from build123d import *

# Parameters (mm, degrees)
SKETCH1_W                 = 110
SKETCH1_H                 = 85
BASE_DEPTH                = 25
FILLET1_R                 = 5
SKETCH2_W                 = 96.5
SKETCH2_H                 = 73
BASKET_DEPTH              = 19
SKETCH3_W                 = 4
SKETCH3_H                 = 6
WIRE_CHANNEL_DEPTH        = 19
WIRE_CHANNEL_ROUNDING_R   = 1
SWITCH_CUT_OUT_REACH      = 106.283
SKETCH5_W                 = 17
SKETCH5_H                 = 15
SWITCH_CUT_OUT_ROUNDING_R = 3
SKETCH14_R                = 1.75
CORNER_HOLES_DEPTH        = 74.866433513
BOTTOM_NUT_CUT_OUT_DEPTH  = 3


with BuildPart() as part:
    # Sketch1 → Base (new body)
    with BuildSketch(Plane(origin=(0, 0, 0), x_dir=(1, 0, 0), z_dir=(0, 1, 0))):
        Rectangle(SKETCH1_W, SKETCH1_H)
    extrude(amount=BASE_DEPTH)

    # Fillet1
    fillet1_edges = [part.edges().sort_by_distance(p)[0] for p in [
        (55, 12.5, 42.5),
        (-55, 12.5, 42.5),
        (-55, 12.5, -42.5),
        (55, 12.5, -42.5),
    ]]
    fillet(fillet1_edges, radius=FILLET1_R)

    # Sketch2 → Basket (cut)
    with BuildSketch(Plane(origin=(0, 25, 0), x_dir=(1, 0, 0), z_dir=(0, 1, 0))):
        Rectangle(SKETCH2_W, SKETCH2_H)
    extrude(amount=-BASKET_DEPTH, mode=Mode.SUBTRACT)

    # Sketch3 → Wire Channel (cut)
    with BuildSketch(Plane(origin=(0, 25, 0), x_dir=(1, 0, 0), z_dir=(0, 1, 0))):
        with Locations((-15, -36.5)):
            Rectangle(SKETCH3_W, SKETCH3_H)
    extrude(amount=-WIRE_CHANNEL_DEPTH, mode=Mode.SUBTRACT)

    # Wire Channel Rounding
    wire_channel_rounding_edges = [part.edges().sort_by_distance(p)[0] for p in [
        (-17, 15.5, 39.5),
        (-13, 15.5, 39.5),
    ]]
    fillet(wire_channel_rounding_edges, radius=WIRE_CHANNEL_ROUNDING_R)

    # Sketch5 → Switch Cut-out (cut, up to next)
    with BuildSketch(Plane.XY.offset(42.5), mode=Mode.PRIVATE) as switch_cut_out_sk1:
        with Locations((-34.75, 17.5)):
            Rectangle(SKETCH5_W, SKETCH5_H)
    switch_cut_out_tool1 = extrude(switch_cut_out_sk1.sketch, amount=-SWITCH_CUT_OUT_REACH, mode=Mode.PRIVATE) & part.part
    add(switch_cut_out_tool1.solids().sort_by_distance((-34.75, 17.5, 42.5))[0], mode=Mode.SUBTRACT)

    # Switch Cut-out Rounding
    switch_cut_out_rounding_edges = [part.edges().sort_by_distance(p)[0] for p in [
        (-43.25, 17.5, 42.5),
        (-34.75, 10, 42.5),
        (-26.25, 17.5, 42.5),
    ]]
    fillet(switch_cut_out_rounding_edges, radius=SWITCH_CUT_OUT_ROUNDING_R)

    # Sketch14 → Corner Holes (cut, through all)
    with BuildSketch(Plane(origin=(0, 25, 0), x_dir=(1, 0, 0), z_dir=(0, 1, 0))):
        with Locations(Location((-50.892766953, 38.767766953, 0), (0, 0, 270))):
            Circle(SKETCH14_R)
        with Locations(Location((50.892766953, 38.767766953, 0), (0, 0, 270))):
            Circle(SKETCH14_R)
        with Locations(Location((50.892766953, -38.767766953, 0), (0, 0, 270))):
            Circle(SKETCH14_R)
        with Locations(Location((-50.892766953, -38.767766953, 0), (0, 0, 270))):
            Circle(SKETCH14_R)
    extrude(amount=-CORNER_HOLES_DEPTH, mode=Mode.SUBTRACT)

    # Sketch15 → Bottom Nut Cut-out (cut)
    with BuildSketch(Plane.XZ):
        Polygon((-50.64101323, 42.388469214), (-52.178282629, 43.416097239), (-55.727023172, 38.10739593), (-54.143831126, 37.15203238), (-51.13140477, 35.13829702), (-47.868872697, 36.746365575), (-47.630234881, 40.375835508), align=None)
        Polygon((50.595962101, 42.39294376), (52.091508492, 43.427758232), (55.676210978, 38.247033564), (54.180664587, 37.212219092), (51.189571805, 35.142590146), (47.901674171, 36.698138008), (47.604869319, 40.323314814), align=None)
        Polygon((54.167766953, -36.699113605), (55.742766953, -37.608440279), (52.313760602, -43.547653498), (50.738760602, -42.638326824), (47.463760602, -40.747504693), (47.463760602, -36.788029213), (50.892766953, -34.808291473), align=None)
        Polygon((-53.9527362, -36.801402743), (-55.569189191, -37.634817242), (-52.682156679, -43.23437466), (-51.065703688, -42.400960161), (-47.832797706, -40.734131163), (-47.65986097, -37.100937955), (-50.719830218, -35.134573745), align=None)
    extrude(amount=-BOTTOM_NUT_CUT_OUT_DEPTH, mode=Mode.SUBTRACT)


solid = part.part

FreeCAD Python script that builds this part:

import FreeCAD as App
import Part
import Sketcher

V = App.Vector
Q = App.Units.Quantity


def edges_at(feature, points):
    """Names of the edges that pass closest to the given points."""
    edges = feature.Shape.Edges
    near = lambda p: min(range(len(edges)), key=lambda i: edges[i].distToShape(Part.Vertex(*p))[0])
    return sorted({f"Edge{near(p) + 1}" for p in points})


def add_polygon(sketch, points):
    """Adds a closed chain of lines whose ends are joined by coincident constraints."""
    first, n = sketch.GeometryCount, len(points)
    for a, b in zip(points, points[1:] + points[:1]):
        sketch.addGeometry(Part.LineSegment(App.Vector(*a, 0), App.Vector(*b, 0)), False)
    for i in range(n):
        sketch.addConstraint(Sketcher.Constraint("Coincident", first + i, 2, first + (i + 1) % n, 1))

doc = App.newDocument("Part")
body = doc.addObject("PartDesign::Body", "Body")

sketch1 = doc.addObject("Sketcher::SketchObject", "Sketch")
body.addObject(sketch1)
sketch1.AttachmentSupport = (doc.XZ_Plane, [""])
sketch1.MapMode = "FlatFace"
add_polygon(sketch1, [(-55, -42), (-55, 42), (55, 42), (55, -42)])
sketch1.addConstraint([
    Sketcher.Constraint("Vertical", 0),
    Sketcher.Constraint("Horizontal", 1),
    Sketcher.Constraint("Vertical", 2),
    Sketcher.Constraint("Horizontal", 3),
    Sketcher.Constraint("Symmetric", 0, 2, 2, 2, -1, 1),
    Sketcher.Constraint("DistanceX", 1, 1, 1, 2, Q("110 mm")),
    Sketcher.Constraint("DistanceY", 0, 1, 0, 2, Q("85 mm")),
])
pad1 = doc.addObject("PartDesign::Pad", "Pad")
body.addObject(pad1)
pad1.Profile = sketch1
pad1.Length = 25
pad1.Reversed = True
doc.recompute()

fillet = doc.addObject("PartDesign::Fillet", "Fillet")
body.addObject(fillet)
fillet.Base = (pad1, edges_at(pad1, [
    (55, 12.5, 42.5),
    (-55, 12.5, 42.5),
    (-55, 12.5, -42.5),
    (55, 12.5, -42.5),
]))
fillet.Radius = 5

sketch2 = doc.addObject("Sketcher::SketchObject", "Sketch001")
body.addObject(sketch2)
sketch2.AttachmentSupport = (doc.XZ_Plane, [""])
sketch2.MapMode = "FlatFace"
sketch2.AttachmentOffset = App.Placement(V(0, 0, -25), App.Rotation())
add_polygon(sketch2, [(-48, -36), (-48, 36), (48, 36), (48, -36)])
sketch2.addConstraint([
    Sketcher.Constraint("Vertical", 0),
    Sketcher.Constraint("Horizontal", 1),
    Sketcher.Constraint("Vertical", 2),
    Sketcher.Constraint("Horizontal", 3),
    Sketcher.Constraint("Symmetric", 0, 2, 2, 2, -1, 1),
    Sketcher.Constraint("DistanceY", 0, 1, 0, 2, Q("73 mm")),
    Sketcher.Constraint("DistanceX", 1, 1, 1, 2, Q("96.5 mm")),
])
pocket1 = doc.addObject("PartDesign::Pocket", "Pocket")
body.addObject(pocket1)
pocket1.Profile = sketch2
pocket1.Length = 19
pocket1.Reversed = True

sketch3 = doc.addObject("Sketcher::SketchObject", "Sketch002")
body.addObject(sketch3)
sketch3.AttachmentSupport = (doc.XZ_Plane, [""])
sketch3.MapMode = "FlatFace"
sketch3.AttachmentOffset = App.Placement(V(0, 0, -25), App.Rotation())
add_polygon(sketch3, [(-17, 33.5), (-17, 39.5), (-13, 39.5), (-13, 33.5)])
sketch3.addConstraint([
    Sketcher.Constraint("Vertical", 0),
    Sketcher.Constraint("Horizontal", 1),
    Sketcher.Constraint("Vertical", 2),
    Sketcher.Constraint("Horizontal", 3),
    Sketcher.Constraint("DistanceX", 1, 1, 1, 2, Q("4 mm")),
    Sketcher.Constraint("DistanceY", 0, 1, 0, 2, Q("6 mm")),
    Sketcher.Constraint("DistanceX", 0, 2, -1, 1, Q("17 mm")),
    Sketcher.Constraint("DistanceY", -1, 1, 0, 2, Q("39.5 mm")),
])
pocket2 = doc.addObject("PartDesign::Pocket", "Pocket001")
body.addObject(pocket2)
pocket2.Profile = sketch3
pocket2.Length = 19
pocket2.Reversed = True
doc.recompute()

fillet2 = doc.addObject("PartDesign::Fillet", "Fillet001")
body.addObject(fillet2)
fillet2.Base = (pocket2, edges_at(pocket2, [(-17, 15.5, 39.5), (-13, 15.5, 39.5)]))
fillet2.Radius = 1

sketch4 = doc.addObject("Sketcher::SketchObject", "Sketch003")
body.addObject(sketch4)
sketch4.AttachmentSupport = (doc.XY_Plane, [""])
sketch4.MapMode = "FlatFace"
sketch4.AttachmentOffset = App.Placement(V(0, 0, 42.5), App.Rotation())
add_polygon(sketch4, [(-43, 25), (-43, 10), (-26, 10), (-26, 25)])
sketch4.addConstraint([
    Sketcher.Constraint("Vertical", 0),
    Sketcher.Constraint("Horizontal", 1),
    Sketcher.Constraint("Vertical", 2),
    Sketcher.Constraint("Horizontal", 3),
    Sketcher.Constraint("DistanceX", 1, 1, 1, 2, Q("17 mm")),
    Sketcher.Constraint("DistanceY", 0, 2, 0, 1, Q("15 mm")),
    Sketcher.Constraint("DistanceY", -1, 1, 0, 2, Q("10 mm")),
    Sketcher.Constraint("DistanceX", 0, 2, -1, 1, Q("43.25 mm")),
])
pocket3 = doc.addObject("PartDesign::Pocket", "Pocket002")
body.addObject(pocket3)
pocket3.Profile = sketch4
pocket3.Type = "UpToFirst"
doc.recompute()

fillet3 = doc.addObject("PartDesign::Fillet", "Fillet002")
body.addObject(fillet3)
fillet3.Base = (pocket3, edges_at(pocket3, [(-43.25, 17.5, 42.5), (-34.75, 10, 42.5), (-26.25, 17.5, 42.5)]))
fillet3.Radius = 3

sketch5 = doc.addObject("Sketcher::SketchObject", "Sketch004")
body.addObject(sketch5)
sketch5.AttachmentSupport = (doc.XZ_Plane, [""])
sketch5.MapMode = "FlatFace"
sketch5.AttachmentOffset = App.Placement(V(0, 0, -25), App.Rotation())
sketch5.addGeometry([
    Part.Circle(V(-50.9, -38.8, 0), V(0, 0, 1), 1.8),
    Part.Circle(V(50.9, -38.8, 0), V(0, 0, 1), 1.8),
    Part.Circle(V(50.9, 38.8, 0), V(0, 0, 1), 1.8),
    Part.Circle(V(-50.9, 38.8, 0), V(0, 0, 1), 1.8),
], False)
sketch5.addConstraint([
    Sketcher.Constraint("Equal", 0, 1),
    Sketcher.Constraint("Equal", 1, 2),
    Sketcher.Constraint("Equal", 2, 3),
    Sketcher.Constraint("Symmetric", 0, 3, 2, 3, -1, 1),
    Sketcher.Constraint("Symmetric", 1, 3, 3, 3, -1, 1),
    Sketcher.Constraint("Symmetric", 0, 3, 1, 3, -2),
    Sketcher.Constraint("Diameter", 0, Q("3.5 mm")),
    Sketcher.Constraint("DistanceX", 0, 3, -1, 1, Q("50.892767 mm")),
    Sketcher.Constraint("DistanceY", 0, 3, -1, 1, Q("38.767767 mm")),
])
pocket4 = doc.addObject("PartDesign::Pocket", "Pocket003")
body.addObject(pocket4)
pocket4.Profile = sketch5
pocket4.Type = "ThroughAll"
pocket4.Reversed = True

sketch6 = doc.addObject("Sketcher::SketchObject", "Sketch005")
body.addObject(sketch6)
sketch6.AttachmentSupport = (doc.XZ_Plane, [""])
sketch6.MapMode = "FlatFace"
add_polygon(sketch6, [(-50.6, 42.4), (-52.2, 43.4), (-55.7, 38.1), (-54.1, 37.2), (-51.1, 35.1), (-47.9, 36.7), (-47.6, 40.4)])
add_polygon(sketch6, [(52.1, 43.4), (50.6, 42.4), (47.6, 40.3), (47.9, 36.7), (51.2, 35.1), (54.2, 37.2), (55.7, 38.2)])
add_polygon(sketch6, [(55.7, -37.6), (54.2, -36.7), (50.9, -34.8), (47.5, -36.8), (47.5, -40.7), (50.7, -42.6), (52.3, -43.5)])
add_polygon(sketch6, [(-55.6, -37.6), (-52.7, -43.2), (-47.8, -40.7), (-47.7, -37.1), (-50.7, -35.1)])
sketch6.addConstraint([
    Sketcher.Constraint("Vertical", 17),
    Sketcher.Constraint("Perpendicular", 0, 1),
    Sketcher.Constraint("Perpendicular", 1, 3),
    Sketcher.Constraint("Parallel", 3, 6),
    Sketcher.Constraint("Parallel", 7, 8),
    Sketcher.Constraint("Parallel", 8, 11),
    Sketcher.Constraint("Parallel", 11, 12),
    Sketcher.Constraint("Perpendicular", 12, 13),
    Sketcher.Constraint("Parallel", 14, 15),
    Sketcher.Constraint("Parallel", 15, 18),
    Sketcher.Constraint("Parallel", 18, 19),
    Sketcher.Constraint("Perpendicular", 19, 20),
    Sketcher.Constraint("Perpendicular", 21, 22),
    Sketcher.Constraint("Parallel", 22, 25),
    Sketcher.Constraint("Equal", 0, 2),
    Sketcher.Constraint("Equal", 4, 5),
    Sketcher.Constraint("Equal", 5, 8),
    Sketcher.Constraint("Equal", 8, 9),
    Sketcher.Constraint("Equal", 9, 10),
    Sketcher.Constraint("Equal", 10, 11),
    Sketcher.Constraint("Equal", 7, 12),
    Sketcher.Constraint("Equal", 12, 14),
    Sketcher.Constraint("Equal", 15, 18),
    Sketcher.Constraint("Equal", 14, 19),
    Sketcher.Constraint("Equal", 13, 21),
    Sketcher.Constraint("Equal", 11, 23),
    Sketcher.Constraint("Equal", 23, 24),
    Sketcher.Constraint("Equal", 22, 25),
    Sketcher.Constraint("Angle", 14, Q("150 deg")),
    Sketcher.Constraint("Angle", 16, Q("-150 deg")),
    Sketcher.Constraint("Distance", 13, Q("6.3 mm")),
    Sketcher.Constraint("DistanceX", 17, 2, 19, 2, Q("4.85 mm")),
    Sketcher.Constraint("DistanceX", 15, 2, 14, 2, Q("3.275 mm")),
    Sketcher.Constraint("Distance", 1, Q("6.385599 mm")),
    Sketcher.Constraint("DistanceY", 1, 2, 0, 2, Q("5.308701 mm")),
    Sketcher.Constraint("DistanceY", 3, 2, 1, 2, Q("2.969099 mm")),
    Sketcher.Constraint("DistanceX", 5, 2, 11, 2, Q("101.810899 mm")),
    Sketcher.Constraint("DistanceY", 21, 2, 24, 2, Q("8.099801 mm")),
    Sketcher.Constraint("Distance", 6, Q("3.62153 mm")),
    Sketcher.Constraint("Distance", 22, Q("5.45596 mm")),
    Sketcher.Constraint("DistanceY", 17, 2, 17, 1, Q("3.959475 mm")),
    Sketcher.Constraint("DistanceX", 2, 2, -1, 1, Q("54.143831 mm")),
    Sketcher.Constraint("DistanceY", -1, 1, 6, 2, Q("42.388469 mm")),
    Sketcher.Constraint("DistanceX", -1, 1, 8, 2, Q("47.604869 mm")),
    Sketcher.Constraint("DistanceY", -1, 1, 9, 2, Q("36.698138 mm")),
    Sketcher.Constraint("DistanceX", -1, 1, 10, 2, Q("51.189572 mm")),
    Sketcher.Constraint("DistanceY", -1, 1, 10, 2, Q("35.14259 mm")),
    Sketcher.Constraint("DistanceY", 15, 2, -1, 1, Q("34.808291 mm")),
    Sketcher.Constraint("DistanceX", -1, 1, 16, 2, Q("47.463761 mm")),
    Sketcher.Constraint("DistanceY", 22, 2, -1, 1, Q("40.734131 mm")),
    Sketcher.Constraint("DistanceX", 23, 2, -1, 1, Q("47.659861 mm")),
    Sketcher.Constraint("DistanceX", 2, 2, 0, 2, Q("1.965548 mm")),
])
pocket5 = doc.addObject("PartDesign::Pocket", "Pocket004")
body.addObject(pocket5)
pocket5.Profile = sketch6
pocket5.Length = 3

doc.recompute()
